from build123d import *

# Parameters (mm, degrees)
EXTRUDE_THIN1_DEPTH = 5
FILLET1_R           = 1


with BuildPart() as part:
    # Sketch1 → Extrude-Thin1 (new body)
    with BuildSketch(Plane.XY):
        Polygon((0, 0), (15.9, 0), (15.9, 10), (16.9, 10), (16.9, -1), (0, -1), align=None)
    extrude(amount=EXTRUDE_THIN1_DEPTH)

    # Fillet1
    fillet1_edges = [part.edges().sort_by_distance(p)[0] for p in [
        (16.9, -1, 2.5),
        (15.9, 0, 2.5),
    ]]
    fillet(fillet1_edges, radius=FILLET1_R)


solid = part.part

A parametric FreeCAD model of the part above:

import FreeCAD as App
import Part
import Sketcher
from FreeCAD import Vector
Q = App.Units.Quantity


def edges_at(feature, points):
    """Names of the edges that pass closest to the given points."""
    edges = feature.Shape.Edges
    near = lambda p: min(range(len(edges)), key=lambda i: edges[i].distToShape(Part.Vertex(*p))[0])
    return sorted({f"Edge{near(p) + 1}" for p in points})


def add_polygon(sketch, points):
    """Adds a closed chain of lines whose ends are joined by coincident constraints."""
    first, n = sketch.GeometryCount, len(points)
    for a, b in zip(points, points[1:] + points[:1]):
        sketch.addGeometry(Part.LineSegment(App.Vector(*a, 0), App.Vector(*b, 0)), False)
    for i in range(n):
        sketch.addConstraint(Sketcher.Constraint("Coincident", first + i, 2, first + (i + 1) % n, 1))

doc = App.newDocument("Part")
body = doc.addObject("PartDesign::Body", "Body")

# Sketch on XY plane
sketch1 = body.newObject("Sketcher::SketchObject", "Sketch")
sketch1.AttachmentSupport = (doc.getObject("XY_Plane"), [""])
sketch1.MapMode = "FlatFace"
add_polygon(sketch1, [(15.9, 0), (0, 0), (0, -1), (16.9, -1), (16.9, 10), (15.9, 10)])  # lines 0-5
sketch1.addConstraint(Sketcher.Constraint("Horizontal", 0))
sketch1.addConstraint(Sketcher.Constraint("Vertical", 1))
sketch1.addConstraint(Sketcher.Constraint("Horizontal", 2))
sketch1.addConstraint(Sketcher.Constraint("Vertical", 3))
sketch1.addConstraint(Sketcher.Constraint("Horizontal", 4))
sketch1.addConstraint(Sketcher.Constraint("Vertical", 5))
sketch1.addConstraint(Sketcher.Constraint("Coincident", 0, 2, -1, 1))
sketch1.addConstraint(Sketcher.Constraint("Equal", 4, 1))
sketch1.addConstraint(Sketcher.Constraint("DistanceX", 4, 2, 4, 1, Q("1 mm")))
sketch1.addConstraint(Sketcher.Constraint("DistanceY", 3, 1, 3, 2, Q("11 mm")))
sketch1.addConstraint(Sketcher.Constraint("DistanceX", 0, 2, 0, 1, Q("15.9 mm")))
pad1 = body.newObject("PartDesign::Pad", "Pad")
pad1.Profile = sketch1
pad1.Length = 5
doc.recompute()

fillet = body.newObject("PartDesign::Fillet", "Fillet")
fillet.Base = (pad1, edges_at(pad1, [(16.9, -1, 2.5), (15.9, 0, 2.5)]))
fillet.Radius = 1

doc.recompute()
